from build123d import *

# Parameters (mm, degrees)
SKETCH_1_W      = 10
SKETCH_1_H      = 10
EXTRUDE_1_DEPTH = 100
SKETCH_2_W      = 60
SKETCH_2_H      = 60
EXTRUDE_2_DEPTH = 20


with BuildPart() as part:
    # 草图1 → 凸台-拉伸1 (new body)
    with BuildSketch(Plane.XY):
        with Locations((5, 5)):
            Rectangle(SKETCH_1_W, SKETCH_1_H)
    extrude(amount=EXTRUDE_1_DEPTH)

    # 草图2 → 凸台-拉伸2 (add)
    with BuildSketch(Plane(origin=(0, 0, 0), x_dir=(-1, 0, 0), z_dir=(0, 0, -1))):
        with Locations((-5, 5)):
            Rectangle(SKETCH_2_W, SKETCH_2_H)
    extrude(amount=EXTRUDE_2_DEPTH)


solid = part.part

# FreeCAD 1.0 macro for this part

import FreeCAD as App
import Part
import Sketcher

V = App.Vector
Q = App.Units.Quantity


def add_polygon(sketch, points):
    """Adds a closed chain of lines whose ends are joined by coincident constraints."""
    first, n = sketch.GeometryCount, len(points)
    for a, b in zip(points, points[1:] + points[:1]):
        sketch.addGeometry(Part.LineSegment(App.Vector(*a, 0), App.Vector(*b, 0)), False)
    for i in range(n):
        sketch.addConstraint(Sketcher.Constraint("Coincident", first + i, 2, first + (i + 1) % n, 1))

doc = App.newDocument("Part")
body = doc.addObject("PartDesign::Body", "Body")

# Sketch on XY plane
sketch1 = body.newObject("Sketcher::SketchObject", "Sketch")
sketch1.AttachmentSupport = (doc.getObject("XY_Plane"), [""])
sketch1.MapMode = "FlatFace"
add_polygon(sketch1, [(0, 10), (0, 0), (10, 0), (10, 10)])  # lines 0-3
sketch1.addConstraint(Sketcher.Constraint("Vertical", 0))
sketch1.addConstraint(Sketcher.Constraint("Horizontal", 1))
sketch1.addConstraint(Sketcher.Constraint("Vertical", 2))
sketch1.addConstraint(Sketcher.Constraint("Horizontal", 3))
sketch1.addConstraint(Sketcher.Constraint("Coincident", 0, 2, -1, 1))
sketch1.addConstraint(Sketcher.Constraint("Equal", 3, 0))
sketch1.addConstraint(Sketcher.Constraint("DistanceX", 1, 1, 1, 2, Q("10 mm")))
pad1 = body.newObject("PartDesign::Pad", "Pad")
pad1.Profile = sketch1
pad1.Length = 100

# Sketch on XY plane
sketch2 = body.newObject("Sketcher::SketchObject", "Sketch001")
sketch2.AttachmentSupport = (doc.getObject("XY_Plane"), [""])
sketch2.MapMode = "FlatFace"
add_polygon(sketch2, [(35, 35), (35, -25), (-25, -25), (-25, 35)])  # lines 0-3
sketch2.addConstraint(Sketcher.Constraint("Vertical", 0))
sketch2.addConstraint(Sketcher.Constraint("Horizontal", 1))
sketch2.addConstraint(Sketcher.Constraint("Vertical", 2))
sketch2.addConstraint(Sketcher.Constraint("Horizontal", 3))
sketch2.addConstraint(Sketcher.Constraint("Equal", 3, 0))
sketch2.addConstraint(Sketcher.Constraint("DistanceX", 1, 2, 1, 1, Q("60 mm")))
sketch2.addConstraint(Sketcher.Constraint("DistanceX", -1, 1, 0, 2, Q("35 mm")))
sketch2.addConstraint(Sketcher.Constraint("DistanceY", 0, 2, -1, 1, Q("25 mm")))
pad2 = body.newObject("PartDesign::Pad", "Pad001")
pad2.Profile = sketch2
pad2.Length = 20
pad2.Reversed = True

doc.recompute()
